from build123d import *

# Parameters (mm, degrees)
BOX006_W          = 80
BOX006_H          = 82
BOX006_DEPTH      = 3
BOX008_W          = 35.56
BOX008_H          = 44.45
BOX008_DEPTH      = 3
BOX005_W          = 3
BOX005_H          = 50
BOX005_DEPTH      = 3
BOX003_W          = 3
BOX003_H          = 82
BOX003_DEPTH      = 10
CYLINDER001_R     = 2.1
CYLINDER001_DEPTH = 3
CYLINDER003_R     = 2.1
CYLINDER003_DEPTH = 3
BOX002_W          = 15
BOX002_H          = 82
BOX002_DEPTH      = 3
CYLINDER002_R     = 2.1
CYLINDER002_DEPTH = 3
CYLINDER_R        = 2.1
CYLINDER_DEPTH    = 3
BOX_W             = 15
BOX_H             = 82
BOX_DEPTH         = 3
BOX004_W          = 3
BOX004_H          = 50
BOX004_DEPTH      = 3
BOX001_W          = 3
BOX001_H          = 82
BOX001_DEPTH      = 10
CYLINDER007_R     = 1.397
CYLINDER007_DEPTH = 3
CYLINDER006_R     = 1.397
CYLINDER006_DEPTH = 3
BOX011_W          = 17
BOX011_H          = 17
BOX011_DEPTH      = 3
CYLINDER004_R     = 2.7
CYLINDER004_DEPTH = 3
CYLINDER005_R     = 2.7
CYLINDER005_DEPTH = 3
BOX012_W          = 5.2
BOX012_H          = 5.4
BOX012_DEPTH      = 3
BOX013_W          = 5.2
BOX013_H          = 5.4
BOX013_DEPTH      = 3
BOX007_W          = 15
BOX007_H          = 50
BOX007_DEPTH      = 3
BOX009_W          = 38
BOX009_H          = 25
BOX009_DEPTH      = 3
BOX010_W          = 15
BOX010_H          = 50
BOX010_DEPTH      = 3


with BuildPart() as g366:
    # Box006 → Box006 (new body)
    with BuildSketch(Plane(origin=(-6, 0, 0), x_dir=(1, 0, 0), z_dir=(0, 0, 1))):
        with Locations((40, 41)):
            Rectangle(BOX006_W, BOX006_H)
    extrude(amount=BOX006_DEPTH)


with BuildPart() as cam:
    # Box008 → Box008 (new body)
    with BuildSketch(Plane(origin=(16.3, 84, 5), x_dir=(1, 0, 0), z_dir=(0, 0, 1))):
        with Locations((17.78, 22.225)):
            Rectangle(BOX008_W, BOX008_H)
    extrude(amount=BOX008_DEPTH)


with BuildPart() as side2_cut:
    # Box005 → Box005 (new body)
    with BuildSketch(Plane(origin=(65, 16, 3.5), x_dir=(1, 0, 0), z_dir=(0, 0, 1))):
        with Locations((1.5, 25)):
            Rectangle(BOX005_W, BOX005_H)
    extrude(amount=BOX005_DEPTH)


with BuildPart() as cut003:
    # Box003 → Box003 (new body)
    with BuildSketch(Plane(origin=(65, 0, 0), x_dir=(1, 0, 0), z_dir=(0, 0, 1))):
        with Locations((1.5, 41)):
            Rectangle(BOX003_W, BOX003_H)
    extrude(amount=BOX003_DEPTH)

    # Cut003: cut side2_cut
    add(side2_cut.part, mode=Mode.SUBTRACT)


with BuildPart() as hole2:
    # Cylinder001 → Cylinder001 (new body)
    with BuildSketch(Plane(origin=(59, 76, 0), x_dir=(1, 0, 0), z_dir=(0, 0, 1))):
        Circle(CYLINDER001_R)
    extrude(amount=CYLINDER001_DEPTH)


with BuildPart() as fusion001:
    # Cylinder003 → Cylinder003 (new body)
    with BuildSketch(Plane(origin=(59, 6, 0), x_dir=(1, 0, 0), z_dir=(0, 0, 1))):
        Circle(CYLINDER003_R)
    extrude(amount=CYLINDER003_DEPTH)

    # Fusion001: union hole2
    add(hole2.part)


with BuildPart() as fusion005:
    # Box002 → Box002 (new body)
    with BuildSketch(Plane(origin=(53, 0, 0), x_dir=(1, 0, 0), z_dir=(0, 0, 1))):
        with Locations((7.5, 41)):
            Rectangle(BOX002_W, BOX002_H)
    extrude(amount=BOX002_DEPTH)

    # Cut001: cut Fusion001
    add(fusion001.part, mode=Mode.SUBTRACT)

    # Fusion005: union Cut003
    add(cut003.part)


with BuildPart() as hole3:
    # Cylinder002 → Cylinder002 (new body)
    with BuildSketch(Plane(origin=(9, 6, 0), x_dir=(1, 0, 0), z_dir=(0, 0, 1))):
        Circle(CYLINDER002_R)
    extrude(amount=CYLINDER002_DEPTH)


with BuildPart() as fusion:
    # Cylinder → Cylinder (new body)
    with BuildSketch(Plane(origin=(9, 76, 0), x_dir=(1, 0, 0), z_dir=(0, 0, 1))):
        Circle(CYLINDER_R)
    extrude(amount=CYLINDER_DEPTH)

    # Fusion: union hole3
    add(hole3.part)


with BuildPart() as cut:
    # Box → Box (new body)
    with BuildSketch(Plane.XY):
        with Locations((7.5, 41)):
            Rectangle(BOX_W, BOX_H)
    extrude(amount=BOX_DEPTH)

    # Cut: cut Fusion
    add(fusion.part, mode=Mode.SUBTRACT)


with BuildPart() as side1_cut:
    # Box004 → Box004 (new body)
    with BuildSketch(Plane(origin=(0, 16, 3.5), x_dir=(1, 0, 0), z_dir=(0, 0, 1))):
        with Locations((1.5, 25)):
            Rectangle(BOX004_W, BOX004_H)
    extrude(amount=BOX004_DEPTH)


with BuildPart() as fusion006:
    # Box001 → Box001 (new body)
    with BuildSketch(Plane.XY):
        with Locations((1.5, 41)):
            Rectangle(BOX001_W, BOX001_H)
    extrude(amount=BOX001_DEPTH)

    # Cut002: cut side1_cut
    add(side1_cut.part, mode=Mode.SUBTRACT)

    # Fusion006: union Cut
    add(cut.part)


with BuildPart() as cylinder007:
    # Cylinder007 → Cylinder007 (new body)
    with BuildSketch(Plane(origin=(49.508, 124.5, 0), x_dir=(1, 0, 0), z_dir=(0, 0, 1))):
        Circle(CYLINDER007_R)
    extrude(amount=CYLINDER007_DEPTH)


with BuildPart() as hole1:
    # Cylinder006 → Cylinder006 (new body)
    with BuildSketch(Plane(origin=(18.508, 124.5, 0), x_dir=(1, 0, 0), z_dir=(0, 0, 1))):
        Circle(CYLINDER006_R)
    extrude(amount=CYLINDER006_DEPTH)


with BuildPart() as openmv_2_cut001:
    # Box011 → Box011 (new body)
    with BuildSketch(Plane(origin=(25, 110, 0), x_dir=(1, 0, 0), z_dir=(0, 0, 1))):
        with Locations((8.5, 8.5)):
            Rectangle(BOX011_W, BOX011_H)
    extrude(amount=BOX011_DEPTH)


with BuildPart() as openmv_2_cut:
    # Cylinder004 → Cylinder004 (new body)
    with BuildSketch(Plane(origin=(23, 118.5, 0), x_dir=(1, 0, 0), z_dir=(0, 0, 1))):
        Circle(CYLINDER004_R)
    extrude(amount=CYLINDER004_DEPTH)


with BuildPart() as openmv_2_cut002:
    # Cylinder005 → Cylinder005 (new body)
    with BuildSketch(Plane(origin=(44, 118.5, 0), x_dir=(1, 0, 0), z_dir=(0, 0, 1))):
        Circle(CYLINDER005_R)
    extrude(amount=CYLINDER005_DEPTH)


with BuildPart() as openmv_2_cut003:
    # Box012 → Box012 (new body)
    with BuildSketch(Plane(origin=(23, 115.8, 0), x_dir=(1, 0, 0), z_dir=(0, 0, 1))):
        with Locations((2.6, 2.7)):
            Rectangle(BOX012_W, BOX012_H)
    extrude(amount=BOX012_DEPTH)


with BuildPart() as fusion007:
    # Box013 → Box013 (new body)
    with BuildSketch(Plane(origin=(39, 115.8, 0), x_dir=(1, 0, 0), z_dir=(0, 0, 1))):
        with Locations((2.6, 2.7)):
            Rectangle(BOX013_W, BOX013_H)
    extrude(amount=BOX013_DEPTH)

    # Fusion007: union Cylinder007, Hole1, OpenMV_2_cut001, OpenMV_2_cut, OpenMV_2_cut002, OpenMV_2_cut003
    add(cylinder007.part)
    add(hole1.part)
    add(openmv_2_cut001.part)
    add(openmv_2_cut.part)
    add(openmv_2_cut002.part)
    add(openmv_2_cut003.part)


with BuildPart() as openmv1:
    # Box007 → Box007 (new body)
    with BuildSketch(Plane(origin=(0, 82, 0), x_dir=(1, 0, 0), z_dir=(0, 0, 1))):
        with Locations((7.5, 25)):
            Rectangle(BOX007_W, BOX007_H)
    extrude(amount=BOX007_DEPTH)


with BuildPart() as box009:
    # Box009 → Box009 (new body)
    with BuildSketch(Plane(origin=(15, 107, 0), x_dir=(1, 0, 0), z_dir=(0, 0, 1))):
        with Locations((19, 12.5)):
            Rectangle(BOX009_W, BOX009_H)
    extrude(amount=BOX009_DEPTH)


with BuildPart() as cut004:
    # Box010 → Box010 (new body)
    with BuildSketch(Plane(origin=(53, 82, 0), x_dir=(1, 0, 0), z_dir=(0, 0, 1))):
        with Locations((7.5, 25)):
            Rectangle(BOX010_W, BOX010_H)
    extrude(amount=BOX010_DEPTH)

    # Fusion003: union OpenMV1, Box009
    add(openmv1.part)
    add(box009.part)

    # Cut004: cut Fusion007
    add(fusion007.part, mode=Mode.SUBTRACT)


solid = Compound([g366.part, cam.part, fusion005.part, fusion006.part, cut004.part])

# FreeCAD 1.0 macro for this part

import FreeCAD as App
import Part
import Sketcher
Q = App.Units.Quantity

doc = App.newDocument("Part")
body = doc.addObject("PartDesign::Body", "Body")

# Sketch on XY plane
sketch1 = body.newObject("Sketcher::SketchObject", "Sketch")
sketch1.AttachmentSupport = (doc.getObject("XY_Plane"), [""])
sketch1.MapMode = "FlatFace"
sketch1.addGeometry([
    Part.LineSegment(App.Vector(-6, 82, 0), App.Vector(-6, 0, 0)),
    Part.LineSegment(App.Vector(-6, 0, 0), App.Vector(74, 0, 0)),
    Part.LineSegment(App.Vector(74, 0, 0), App.Vector(74, 82, 0)),
    Part.LineSegment(App.Vector(74, 82, 0), App.Vector(-6, 82, 0)),
], False)
sketch1.addConstraint([
    Sketcher.Constraint("Coincident", 0, 2, 1, 1),
    Sketcher.Constraint("Coincident", 1, 2, 2, 1),
    Sketcher.Constraint("Coincident", 2, 2, 3, 1),
    Sketcher.Constraint("Coincident", 3, 2, 0, 1),
    Sketcher.Constraint("Vertical", 0),
    Sketcher.Constraint("Horizontal", 1),
    Sketcher.Constraint("Vertical", 2),
    Sketcher.Constraint("Horizontal", 3),
    Sketcher.Constraint("PointOnObject", 0, 2, -1),
    Sketcher.Constraint("DistanceX", 1, 1, 1, 2, Q("80 mm")),
    Sketcher.Constraint("DistanceY", 0, 2, 0, 1, Q("82 mm")),
    Sketcher.Constraint("DistanceX", 0, 2, -1, 1, Q("6 mm")),
])
pad1 = body.newObject("PartDesign::Pad", "Pad")
pad1.Profile = sketch1
pad1.Length = 3
body2 = doc.addObject("PartDesign::Body", "Body001")

# Sketch on XY plane
sketch2 = body2.newObject("Sketcher::SketchObject", "Sketch001")
sketch2.AttachmentSupport = (doc.getObject("XY_Plane001"), [""])
sketch2.MapMode = "FlatFace"
sketch2.AttachmentOffset = App.Placement(App.Vector(0, 0, 5), App.Rotation())
sketch2.addGeometry([
    Part.LineSegment(App.Vector(16, 128, 0), App.Vector(16, 84, 0)),
    Part.LineSegment(App.Vector(16, 84, 0), App.Vector(52, 84, 0)),
    Part.LineSegment(App.Vector(52, 84, 0), App.Vector(52, 128, 0)),
    Part.LineSegment(App.Vector(52, 128, 0), App.Vector(16, 128, 0)),
], False)
sketch2.addConstraint([
    Sketcher.Constraint("Coincident", 0, 2, 1, 1),
    Sketcher.Constraint("Coincident", 1, 2, 2, 1),
    Sketcher.Constraint("Coincident", 2, 2, 3, 1),
    Sketcher.Constraint("Coincident", 3, 2, 0, 1),
    Sketcher.Constraint("Vertical", 0),
    Sketcher.Constraint("Horizontal", 1),
    Sketcher.Constraint("Vertical", 2),
    Sketcher.Constraint("Horizontal", 3),
    Sketcher.Constraint("DistanceY", -1, 1, 0, 2, Q("84 mm")),
    Sketcher.Constraint("DistanceX", 1, 1, 1, 2, Q("35.56 mm")),
    Sketcher.Constraint("DistanceY", 0, 2, 0, 1, Q("44.45 mm")),
    Sketcher.Constraint("DistanceX", -1, 1, 0, 2, Q("16.3 mm")),
])
pad2 = body2.newObject("PartDesign::Pad", "Pad001")
pad2.Profile = sketch2
pad2.Length = 3
body3 = doc.addObject("PartDesign::Body", "Body002")

# Sketch on XY plane
sketch3 = body3.newObject("Sketcher::SketchObject", "Sketch002")
sketch3.AttachmentSupport = (doc.getObject("XY_Plane002"), [""])
sketch3.MapMode = "FlatFace"
sketch3.AttachmentOffset = App.Placement(App.Vector(0, 0, 3.5), App.Rotation())
sketch3.addGeometry([
    Part.LineSegment(App.Vector(65, 66, 0), App.Vector(65, 16, 0)),
    Part.LineSegment(App.Vector(65, 16, 0), App.Vector(68, 16, 0)),
    Part.LineSegment(App.Vector(68, 16, 0), App.Vector(68, 66, 0)),
    Part.LineSegment(App.Vector(68, 66, 0), App.Vector(65, 66, 0)),
], False)
sketch3.addConstraint([
    Sketcher.Constraint("Coincident", 0, 2, 1, 1),
    Sketcher.Constraint("Coincident", 1, 2, 2, 1),
    Sketcher.Constraint("Coincident", 2, 2, 3, 1),
    Sketcher.Constraint("Coincident", 3, 2, 0, 1),
    Sketcher.Constraint("Vertical", 0),
    Sketcher.Constraint("Horizontal", 1),
    Sketcher.Constraint("Vertical", 2),
    Sketcher.Constraint("Horizontal", 3),
    Sketcher.Constraint("DistanceX", 1, 1, 1, 2, Q("3 mm")),
    Sketcher.Constraint("DistanceY", 0, 2, 0, 1, Q("50 mm")),
    Sketcher.Constraint("DistanceX", -1, 1, 0, 2, Q("65 mm")),
    Sketcher.Constraint("DistanceY", -1, 1, 0, 2, Q("16 mm")),
])
pad3 = body3.newObject("PartDesign::Pad", "Pad002")
pad3.Profile = sketch3
pad3.Length = 3
body4 = doc.addObject("PartDesign::Body", "Body003")

# Sketch on XY plane
sketch4 = body4.newObject("Sketcher::SketchObject", "Sketch003")
sketch4.AttachmentSupport = (doc.getObject("XY_Plane003"), [""])
sketch4.MapMode = "FlatFace"
sketch4.addGeometry([
    Part.LineSegment(App.Vector(65, 82, 0), App.Vector(65, 0, 0)),
    Part.LineSegment(App.Vector(65, 0, 0), App.Vector(68, 0, 0)),
    Part.LineSegment(App.Vector(68, 0, 0), App.Vector(68, 82, 0)),
    Part.LineSegment(App.Vector(68, 82, 0), App.Vector(65, 82, 0)),
], False)
sketch4.addConstraint([
    Sketcher.Constraint("Coincident", 0, 2, 1, 1),
    Sketcher.Constraint("Coincident", 1, 2, 2, 1),
    Sketcher.Constraint("Coincident", 2, 2, 3, 1),
    Sketcher.Constraint("Coincident", 3, 2, 0, 1),
    Sketcher.Constraint("Vertical", 0),
    Sketcher.Constraint("Horizontal", 1),
    Sketcher.Constraint("Vertical", 2),
    Sketcher.Constraint("Horizontal", 3),
    Sketcher.Constraint("PointOnObject", 0, 2, -1),
    Sketcher.Constraint("DistanceX", 1, 1, 1, 2, Q("3 mm")),
    Sketcher.Constraint("DistanceY", 0, 2, 0, 1, Q("82 mm")),
    Sketcher.Constraint("DistanceX", -1, 1, 0, 2, Q("65 mm")),
])
pad4 = body4.newObject("PartDesign::Pad", "Pad003")
pad4.Profile = sketch4
pad4.Length = 10
doc.recompute()

boolean = body4.newObject("PartDesign::Boolean", "Boolean")
boolean.Type = "Cut"
boolean.addObjects([body3])
body5 = doc.addObject("PartDesign::Body", "Body004")

# Sketch on XY plane
sketch5 = body5.newObject("Sketcher::SketchObject", "Sketch004")
sketch5.AttachmentSupport = (doc.getObject("XY_Plane004"), [""])
sketch5.MapMode = "FlatFace"
sketch5.addGeometry(Part.Circle(App.Vector(59, 76, 0), App.Vector(0, 0, 1), 2.1), False)
sketch5.addConstraint([
    Sketcher.Constraint("Diameter", 0, Q("4.2 mm")),
    Sketcher.Constraint("DistanceX", -1, 1, 0, 3, Q("59 mm")),
    Sketcher.Constraint("DistanceY", -1, 1, 0, 3, Q("76 mm")),
])
pad5 = body5.newObject("PartDesign::Pad", "Pad004")
pad5.Profile = sketch5
pad5.Length = 3
body6 = doc.addObject("PartDesign::Body", "Body005")
body6.AllowCompound = True

# Sketch on XY plane
sketch6 = body6.newObject("Sketcher::SketchObject", "Sketch005")
sketch6.AttachmentSupport = (doc.getObject("XY_Plane005"), [""])
sketch6.MapMode = "FlatFace"
sketch6.addGeometry(Part.Circle(App.Vector(59, 6, 0), App.Vector(0, 0, 1), 2.1), False)
sketch6.addConstraint([
    Sketcher.Constraint("Diameter", 0, Q("4.2 mm")),
    Sketcher.Constraint("DistanceX", -1, 1, 0, 3, Q("59 mm")),
    Sketcher.Constraint("DistanceY", -1, 1, 0, 3, Q("6 mm")),
])
pad6 = body6.newObject("PartDesign::Pad", "Pad005")
pad6.Profile = sketch6
pad6.Length = 3
doc.recompute()

boolean2 = body6.newObject("PartDesign::Boolean", "Boolean001")
boolean2.Type = "Fuse"
boolean2.addObjects([body5])
body7 = doc.addObject("PartDesign::Body", "Body006")

# Sketch on XY plane
sketch7 = body7.newObject("Sketcher::SketchObject", "Sketch006")
sketch7.AttachmentSupport = (doc.getObject("XY_Plane006"), [""])
sketch7.MapMode = "FlatFace"
sketch7.addGeometry([
    Part.LineSegment(App.Vector(53, 82, 0), App.Vector(53, 0, 0)),
    Part.LineSegment(App.Vector(53, 0, 0), App.Vector(68, 0, 0)),
    Part.LineSegment(App.Vector(68, 0, 0), App.Vector(68, 82, 0)),
    Part.LineSegment(App.Vector(68, 82, 0), App.Vector(53, 82, 0)),
], False)
sketch7.addConstraint([
    Sketcher.Constraint("Coincident", 0, 2, 1, 1),
    Sketcher.Constraint("Coincident", 1, 2, 2, 1),
    Sketcher.Constraint("Coincident", 2, 2, 3, 1),
    Sketcher.Constraint("Coincident", 3, 2, 0, 1),
    Sketcher.Constraint("Vertical", 0),
    Sketcher.Constraint("Horizontal", 1),
    Sketcher.Constraint("Vertical", 2),
    Sketcher.Constraint("Horizontal", 3),
    Sketcher.Constraint("PointOnObject", 0, 2, -1),
    Sketcher.Constraint("DistanceX", 1, 1, 1, 2, Q("15 mm")),
    Sketcher.Constraint("DistanceY", 0, 2, 0, 1, Q("82 mm")),
    Sketcher.Constraint("DistanceX", -1, 1, 0, 2, Q("53 mm")),
])
pad7 = body7.newObject("PartDesign::Pad", "Pad006")
pad7.Profile = sketch7
pad7.Length = 3
doc.recompute()

boolean3 = body7.newObject("PartDesign::Boolean", "Boolean002")
boolean3.Type = "Cut"
boolean3.addObjects([body6])
doc.recompute()

boolean4 = body7.newObject("PartDesign::Boolean", "Boolean003")
boolean4.Type = "Fuse"
boolean4.addObjects([body4])
body8 = doc.addObject("PartDesign::Body", "Body007")

# Sketch on XY plane
sketch8 = body8.newObject("Sketcher::SketchObject", "Sketch007")
sketch8.AttachmentSupport = (doc.getObject("XY_Plane007"), [""])
sketch8.MapMode = "FlatFace"
sketch8.addGeometry(Part.Circle(App.Vector(9, 6, 0), App.Vector(0, 0, 1), 2.1), False)
sketch8.addConstraint([
    Sketcher.Constraint("Diameter", 0, Q("4.2 mm")),
    Sketcher.Constraint("DistanceX", -1, 1, 0, 3, Q("9 mm")),
    Sketcher.Constraint("DistanceY", -1, 1, 0, 3, Q("6 mm")),
])
pad8 = body8.newObject("PartDesign::Pad", "Pad007")
pad8.Profile = sketch8
pad8.Length = 3
body9 = doc.addObject("PartDesign::Body", "Body008")
body9.AllowCompound = True

# Sketch on XY plane
sketch9 = body9.newObject("Sketcher::SketchObject", "Sketch008")
sketch9.AttachmentSupport = (doc.getObject("XY_Plane008"), [""])
sketch9.MapMode = "FlatFace"
sketch9.addGeometry(Part.Circle(App.Vector(9, 76, 0), App.Vector(0, 0, 1), 2.1), False)
sketch9.addConstraint([
    Sketcher.Constraint("Diameter", 0, Q("4.2 mm")),
    Sketcher.Constraint("DistanceX", -1, 1, 0, 3, Q("9 mm")),
    Sketcher.Constraint("DistanceY", -1, 1, 0, 3, Q("76 mm")),
])
pad9 = body9.newObject("PartDesign::Pad", "Pad008")
pad9.Profile = sketch9
pad9.Length = 3
doc.recompute()

boolean5 = body9.newObject("PartDesign::Boolean", "Boolean004")
boolean5.Type = "Fuse"
boolean5.addObjects([body8])
body10 = doc.addObject("PartDesign::Body", "Body009")

# Sketch on XY plane
sketch10 = body10.newObject("Sketcher::SketchObject", "Sketch009")
sketch10.AttachmentSupport = (doc.getObject("XY_Plane009"), [""])
sketch10.MapMode = "FlatFace"
sketch10.addGeometry([
    Part.LineSegment(App.Vector(0, 82, 0), App.Vector(0, 0, 0)),
    Part.LineSegment(App.Vector(0, 0, 0), App.Vector(15, 0, 0)),
    Part.LineSegment(App.Vector(15, 0, 0), App.Vector(15, 82, 0)),
    Part.LineSegment(App.Vector(15, 82, 0), App.Vector(0, 82, 0)),
], False)
sketch10.addConstraint([
    Sketcher.Constraint("Coincident", 0, 2, 1, 1),
    Sketcher.Constraint("Coincident", 1, 2, 2, 1),
    Sketcher.Constraint("Coincident", 2, 2, 3, 1),
    Sketcher.Constraint("Coincident", 3, 2, 0, 1),
    Sketcher.Constraint("Vertical", 0),
    Sketcher.Constraint("Horizontal", 1),
    Sketcher.Constraint("Vertical", 2),
    Sketcher.Constraint("Horizontal", 3),
    Sketcher.Constraint("Coincident", 0, 2, -1, 1),
    Sketcher.Constraint("DistanceX", 1, 1, 1, 2, Q("15 mm")),
    Sketcher.Constraint("DistanceY", 0, 2, 0, 1, Q("82 mm")),
])
pad10 = body10.newObject("PartDesign::Pad", "Pad009")
pad10.Profile = sketch10
pad10.Length = 3
doc.recompute()

boolean6 = body10.newObject("PartDesign::Boolean", "Boolean005")
boolean6.Type = "Cut"
boolean6.addObjects([body9])
body11 = doc.addObject("PartDesign::Body", "Body010")

# Sketch on XY plane
sketch11 = body11.newObject("Sketcher::SketchObject", "Sketch010")
sketch11.AttachmentSupport = (doc.getObject("XY_Plane010"), [""])
sketch11.MapMode = "FlatFace"
sketch11.AttachmentOffset = App.Placement(App.Vector(0, 0, 3.5), App.Rotation())
sketch11.addGeometry([
    Part.LineSegment(App.Vector(0, 66, 0), App.Vector(0, 16, 0)),
    Part.LineSegment(App.Vector(0, 16, 0), App.Vector(3, 16, 0)),
    Part.LineSegment(App.Vector(3, 16, 0), App.Vector(3, 66, 0)),
    Part.LineSegment(App.Vector(3, 66, 0), App.Vector(0, 66, 0)),
], False)
sketch11.addConstraint([
    Sketcher.Constraint("Coincident", 0, 2, 1, 1),
    Sketcher.Constraint("Coincident", 1, 2, 2, 1),
    Sketcher.Constraint("Coincident", 2, 2, 3, 1),
    Sketcher.Constraint("Coincident", 3, 2, 0, 1),
    Sketcher.Constraint("Vertical", 0),
    Sketcher.Constraint("Horizontal", 1),
    Sketcher.Constraint("Vertical", 2),
    Sketcher.Constraint("Horizontal", 3),
    Sketcher.Constraint("PointOnObject", 0, 2, -2),
    Sketcher.Constraint("DistanceX", 1, 1, 1, 2, Q("3 mm")),
    Sketcher.Constraint("DistanceY", 0, 2, 0, 1, Q("50 mm")),
    Sketcher.Constraint("DistanceY", -1, 1, 0, 2, Q("16 mm")),
])
pad11 = body11.newObject("PartDesign::Pad", "Pad010")
pad11.Profile = sketch11
pad11.Length = 3
body12 = doc.addObject("PartDesign::Body", "Body011")

# Sketch on XY plane
sketch12 = body12.newObject("Sketcher::SketchObject", "Sketch011")
sketch12.AttachmentSupport = (doc.getObject("XY_Plane011"), [""])
sketch12.MapMode = "FlatFace"
sketch12.addGeometry([
    Part.LineSegment(App.Vector(0, 82, 0), App.Vector(0, 0, 0)),
    Part.LineSegment(App.Vector(0, 0, 0), App.Vector(3, 0, 0)),
    Part.LineSegment(App.Vector(3, 0, 0), App.Vector(3, 82, 0)),
    Part.LineSegment(App.Vector(3, 82, 0), App.Vector(0, 82, 0)),
], False)
sketch12.addConstraint([
    Sketcher.Constraint("Coincident", 0, 2, 1, 1),
    Sketcher.Constraint("Coincident", 1, 2, 2, 1),
    Sketcher.Constraint("Coincident", 2, 2, 3, 1),
    Sketcher.Constraint("Coincident", 3, 2, 0, 1),
    Sketcher.Constraint("Vertical", 0),
    Sketcher.Constraint("Horizontal", 1),
    Sketcher.Constraint("Vertical", 2),
    Sketcher.Constraint("Horizontal", 3),
    Sketcher.Constraint("Coincident", 0, 2, -1, 1),
    Sketcher.Constraint("DistanceX", 1, 1, 1, 2, Q("3 mm")),
    Sketcher.Constraint("DistanceY", 0, 2, 0, 1, Q("82 mm")),
])
pad12 = body12.newObject("PartDesign::Pad", "Pad011")
pad12.Profile = sketch12
pad12.Length = 10
doc.recompute()

boolean7 = body12.newObject("PartDesign::Boolean", "Boolean006")
boolean7.Type = "Cut"
boolean7.addObjects([body11])
doc.recompute()

boolean8 = body12.newObject("PartDesign::Boolean", "Boolean007")
boolean8.Type = "Fuse"
boolean8.addObjects([body10])
body13 = doc.addObject("PartDesign::Body", "Body012")

# Sketch on XY plane
sketch13 = body13.newObject("Sketcher::SketchObject", "Sketch012")
sketch13.AttachmentSupport = (doc.getObject("XY_Plane012"), [""])
sketch13.MapMode = "FlatFace"
sketch13.addGeometry(Part.Circle(App.Vector(49.5, 124.5, 0), App.Vector(0, 0, 1), 1.4), False)
sketch13.addConstraint([
    Sketcher.Constraint("Diameter", 0, Q("2.794 mm")),
    Sketcher.Constraint("DistanceY", -1, 1, 0, 3, Q("124.5 mm")),
    Sketcher.Constraint("DistanceX", -1, 1, 0, 3, Q("49.508 mm")),
])
pad13 = body13.newObject("PartDesign::Pad", "Pad012")
pad13.Profile = sketch13
pad13.Length = 3
body14 = doc.addObject("PartDesign::Body", "Body013")

# Sketch on XY plane
sketch14 = body14.newObject("Sketcher::SketchObject", "Sketch013")
sketch14.AttachmentSupport = (doc.getObject("XY_Plane013"), [""])
sketch14.MapMode = "FlatFace"
sketch14.addGeometry(Part.Circle(App.Vector(18.5, 124.5, 0), App.Vector(0, 0, 1), 1.4), False)
sketch14.addConstraint([
    Sketcher.Constraint("Diameter", 0, Q("2.794 mm")),
    Sketcher.Constraint("DistanceY", -1, 1, 0, 3, Q("124.5 mm")),
    Sketcher.Constraint("DistanceX", -1, 1, 0, 3, Q("18.508 mm")),
])
pad14 = body14.newObject("PartDesign::Pad", "Pad013")
pad14.Profile = sketch14
pad14.Length = 3
body15 = doc.addObject("PartDesign::Body", "Body014")

# Sketch on XY plane
sketch15 = body15.newObject("Sketcher::SketchObject", "Sketch014")
sketch15.AttachmentSupport = (doc.getObject("XY_Plane014"), [""])
sketch15.MapMode = "FlatFace"
sketch15.addGeometry([
    Part.LineSegment(App.Vector(25, 127, 0), App.Vector(25, 110, 0)),
    Part.LineSegment(App.Vector(25, 110, 0), App.Vector(42, 110, 0)),
    Part.LineSegment(App.Vector(42, 110, 0), App.Vector(42, 127, 0)),
    Part.LineSegment(App.Vector(42, 127, 0), App.Vector(25, 127, 0)),
], False)
sketch15.addConstraint([
    Sketcher.Constraint("Coincident", 0, 2, 1, 1),
    Sketcher.Constraint("Coincident", 1, 2, 2, 1),
    Sketcher.Constraint("Coincident", 2, 2, 3, 1),
    Sketcher.Constraint("Coincident", 3, 2, 0, 1),
    Sketcher.Constraint("Vertical", 0),
    Sketcher.Constraint("Horizontal", 1),
    Sketcher.Constraint("Vertical", 2),
    Sketcher.Constraint("Horizontal", 3),
    Sketcher.Constraint("Equal", 3, 0),
    Sketcher.Constraint("DistanceX", 1, 1, 1, 2, Q("17 mm")),
    Sketcher.Constraint("DistanceX", -1, 1, 0, 2, Q("25 mm")),
    Sketcher.Constraint("DistanceY", -1, 1, 0, 2, Q("110 mm")),
])
pad15 = body15.newObject("PartDesign::Pad", "Pad014")
pad15.Profile = sketch15
pad15.Length = 3
body16 = doc.addObject("PartDesign::Body", "Body015")

# Sketch on XY plane
sketch16 = body16.newObject("Sketcher::SketchObject", "Sketch015")
sketch16.AttachmentSupport = (doc.getObject("XY_Plane015"), [""])
sketch16.MapMode = "FlatFace"
sketch16.addGeometry(Part.Circle(App.Vector(23, 118.5, 0), App.Vector(0, 0, 1), 2.7), False)
sketch16.addConstraint([
    Sketcher.Constraint("Diameter", 0, Q("5.4 mm")),
    Sketcher.Constraint("DistanceX", -1, 1, 0, 3, Q("23 mm")),
    Sketcher.Constraint("DistanceY", -1, 1, 0, 3, Q("118.5 mm")),
])
pad16 = body16.newObject("PartDesign::Pad", "Pad015")
pad16.Profile = sketch16
pad16.Length = 3
body17 = doc.addObject("PartDesign::Body", "Body016")

# Sketch on XY plane
sketch17 = body17.newObject("Sketcher::SketchObject", "Sketch016")
sketch17.AttachmentSupport = (doc.getObject("XY_Plane016"), [""])
sketch17.MapMode = "FlatFace"
sketch17.addGeometry(Part.Circle(App.Vector(44, 118.5, 0), App.Vector(0, 0, 1), 2.7), False)
sketch17.addConstraint([
    Sketcher.Constraint("Diameter", 0, Q("5.4 mm")),
    Sketcher.Constraint("DistanceX", -1, 1, 0, 3, Q("44 mm")),
    Sketcher.Constraint("DistanceY", -1, 1, 0, 3, Q("118.5 mm")),
])
pad17 = body17.newObject("PartDesign::Pad", "Pad016")
pad17.Profile = sketch17
pad17.Length = 3
body18 = doc.addObject("PartDesign::Body", "Body017")

# Sketch on XY plane
sketch18 = body18.newObject("Sketcher::SketchObject", "Sketch017")
sketch18.AttachmentSupport = (doc.getObject("XY_Plane017"), [""])
sketch18.MapMode = "FlatFace"
sketch18.addGeometry([
    Part.LineSegment(App.Vector(23, 121, 0), App.Vector(23, 116, 0)),
    Part.LineSegment(App.Vector(23, 116, 0), App.Vector(28, 116, 0)),
    Part.LineSegment(App.Vector(28, 116, 0), App.Vector(28, 121, 0)),
    Part.LineSegment(App.Vector(28, 121, 0), App.Vector(23, 121, 0)),
], False)
sketch18.addConstraint([
    Sketcher.Constraint("Coincident", 0, 2, 1, 1),
    Sketcher.Constraint("Coincident", 1, 2, 2, 1),
    Sketcher.Constraint("Coincident", 2, 2, 3, 1),
    Sketcher.Constraint("Coincident", 3, 2, 0, 1),
    Sketcher.Constraint("Vertical", 0),
    Sketcher.Constraint("Horizontal", 1),
    Sketcher.Constraint("Vertical", 2),
    Sketcher.Constraint("Horizontal", 3),
    Sketcher.Constraint("DistanceX", 1, 1, 1, 2, Q("5.2 mm")),
    Sketcher.Constraint("DistanceY", 0, 2, 0, 1, Q("5.4 mm")),
    Sketcher.Constraint("DistanceX", -1, 1, 0, 2, Q("23 mm")),
    Sketcher.Constraint("DistanceY", -1, 1, 0, 2, Q("115.8 mm")),
])
pad18 = body18.newObject("PartDesign::Pad", "Pad017")
pad18.Profile = sketch18
pad18.Length = 3
body19 = doc.addObject("PartDesign::Body", "Body018")
body19.AllowCompound = True

# Sketch on XY plane
sketch19 = body19.newObject("Sketcher::SketchObject", "Sketch018")
sketch19.AttachmentSupport = (doc.getObject("XY_Plane018"), [""])
sketch19.MapMode = "FlatFace"
sketch19.addGeometry([
    Part.LineSegment(App.Vector(39, 121, 0), App.Vector(39, 116, 0)),
    Part.LineSegment(App.Vector(39, 116, 0), App.Vector(44, 116, 0)),
    Part.LineSegment(App.Vector(44, 116, 0), App.Vector(44, 121, 0)),
    Part.LineSegment(App.Vector(44, 121, 0), App.Vector(39, 121, 0)),
], False)
sketch19.addConstraint([
    Sketcher.Constraint("Coincident", 0, 2, 1, 1),
    Sketcher.Constraint("Coincident", 1, 2, 2, 1),
    Sketcher.Constraint("Coincident", 2, 2, 3, 1),
    Sketcher.Constraint("Coincident", 3, 2, 0, 1),
    Sketcher.Constraint("Vertical", 0),
    Sketcher.Constraint("Horizontal", 1),
    Sketcher.Constraint("Vertical", 2),
    Sketcher.Constraint("Horizontal", 3),
    Sketcher.Constraint("DistanceX", 1, 1, 1, 2, Q("5.2 mm")),
    Sketcher.Constraint("DistanceY", 0, 2, 0, 1, Q("5.4 mm")),
    Sketcher.Constraint("DistanceX", -1, 1, 0, 2, Q("39 mm")),
    Sketcher.Constraint("DistanceY", -1, 1, 0, 2, Q("115.8 mm")),
])
pad19 = body19.newObject("PartDesign::Pad", "Pad018")
pad19.Profile = sketch19
pad19.Length = 3
doc.recompute()

boolean9 = body19.newObject("PartDesign::Boolean", "Boolean008")
boolean9.Type = "Fuse"
boolean9.addObjects([body13])
doc.recompute()

boolean10 = body19.newObject("PartDesign::Boolean", "Boolean009")
boolean10.Type = "Fuse"
boolean10.addObjects([body14])
doc.recompute()

boolean11 = body19.newObject("PartDesign::Boolean", "Boolean010")
boolean11.Type = "Fuse"
boolean11.addObjects([body15])
doc.recompute()

boolean12 = body19.newObject("PartDesign::Boolean", "Boolean011")
boolean12.Type = "Fuse"
boolean12.addObjects([body16])
doc.recompute()

boolean13 = body19.newObject("PartDesign::Boolean", "Boolean012")
boolean13.Type = "Fuse"
boolean13.addObjects([body17])
doc.recompute()

boolean14 = body19.newObject("PartDesign::Boolean", "Boolean013")
boolean14.Type = "Fuse"
boolean14.addObjects([body18])
body20 = doc.addObject("PartDesign::Body", "Body019")

# Sketch on XY plane
sketch20 = body20.newObject("Sketcher::SketchObject", "Sketch019")
sketch20.AttachmentSupport = (doc.getObject("XY_Plane019"), [""])
sketch20.MapMode = "FlatFace"
sketch20.addGeometry([
    Part.LineSegment(App.Vector(0, 132, 0), App.Vector(0, 82, 0)),
    Part.LineSegment(App.Vector(0, 82, 0), App.Vector(15, 82, 0)),
    Part.LineSegment(App.Vector(15, 82, 0), App.Vector(15, 132, 0)),
    Part.LineSegment(App.Vector(15, 132, 0), App.Vector(0, 132, 0)),
], False)
sketch20.addConstraint([
    Sketcher.Constraint("Coincident", 0, 2, 1, 1),
    Sketcher.Constraint("Coincident", 1, 2, 2, 1),
    Sketcher.Constraint("Coincident", 2, 2, 3, 1),
    Sketcher.Constraint("Coincident", 3, 2, 0, 1),
    Sketcher.Constraint("Vertical", 0),
    Sketcher.Constraint("Horizontal", 1),
    Sketcher.Constraint("Vertical", 2),
    Sketcher.Constraint("Horizontal", 3),
    Sketcher.Constraint("PointOnObject", 0, 2, -2),
    Sketcher.Constraint("DistanceX", 1, 1, 1, 2, Q("15 mm")),
    Sketcher.Constraint("DistanceY", 0, 2, 0, 1, Q("50 mm")),
    Sketcher.Constraint("DistanceY", -1, 1, 0, 2, Q("82 mm")),
])
pad20 = body20.newObject("PartDesign::Pad", "Pad019")
pad20.Profile = sketch20
pad20.Length = 3
body21 = doc.addObject("PartDesign::Body", "Body020")

# Sketch on XY plane
sketch21 = body21.newObject("Sketcher::SketchObject", "Sketch020")
sketch21.AttachmentSupport = (doc.getObject("XY_Plane020"), [""])
sketch21.MapMode = "FlatFace"
sketch21.addGeometry([
    Part.LineSegment(App.Vector(15, 132, 0), App.Vector(15, 107, 0)),
    Part.LineSegment(App.Vector(15, 107, 0), App.Vector(53, 107, 0)),
    Part.LineSegment(App.Vector(53, 107, 0), App.Vector(53, 132, 0)),
    Part.LineSegment(App.Vector(53, 132, 0), App.Vector(15, 132, 0)),
], False)
sketch21.addConstraint([
    Sketcher.Constraint("Coincident", 0, 2, 1, 1),
    Sketcher.Constraint("Coincident", 1, 2, 2, 1),
    Sketcher.Constraint("Coincident", 2, 2, 3, 1),
    Sketcher.Constraint("Coincident", 3, 2, 0, 1),
    Sketcher.Constraint("Vertical", 0),
    Sketcher.Constraint("Horizontal", 1),
    Sketcher.Constraint("Vertical", 2),
    Sketcher.Constraint("Horizontal", 3),
    Sketcher.Constraint("DistanceX", 1, 1, 1, 2, Q("38 mm")),
    Sketcher.Constraint("DistanceY", 0, 2, 0, 1, Q("25 mm")),
    Sketcher.Constraint("DistanceX", -1, 1, 0, 2, Q("15 mm")),
    Sketcher.Constraint("DistanceY", -1, 1, 0, 2, Q("107 mm")),
])
pad21 = body21.newObject("PartDesign::Pad", "Pad020")
pad21.Profile = sketch21
pad21.Length = 3
body22 = doc.addObject("PartDesign::Body", "Body021")
body22.AllowCompound = True

# Sketch on XY plane
sketch22 = body22.newObject("Sketcher::SketchObject", "Sketch021")
sketch22.AttachmentSupport = (doc.getObject("XY_Plane021"), [""])
sketch22.MapMode = "FlatFace"
sketch22.addGeometry([
    Part.LineSegment(App.Vector(53, 132, 0), App.Vector(53, 82, 0)),
    Part.LineSegment(App.Vector(53, 82, 0), App.Vector(68, 82, 0)),
    Part.LineSegment(App.Vector(68, 82, 0), App.Vector(68, 132, 0)),
    Part.LineSegment(App.Vector(68, 132, 0), App.Vector(53, 132, 0)),
], False)
sketch22.addConstraint([
    Sketcher.Constraint("Coincident", 0, 2, 1, 1),
    Sketcher.Constraint("Coincident", 1, 2, 2, 1),
    Sketcher.Constraint("Coincident", 2, 2, 3, 1),
    Sketcher.Constraint("Coincident", 3, 2, 0, 1),
    Sketcher.Constraint("Vertical", 0),
    Sketcher.Constraint("Horizontal", 1),
    Sketcher.Constraint("Vertical", 2),
    Sketcher.Constraint("Horizontal", 3),
    Sketcher.Constraint("DistanceX", 1, 1, 1, 2, Q("15 mm")),
    Sketcher.Constraint("DistanceY", 0, 2, 0, 1, Q("50 mm")),
    Sketcher.Constraint("DistanceX", -1, 1, 0, 2, Q("53 mm")),
    Sketcher.Constraint("DistanceY", -1, 1, 0, 2, Q("82 mm")),
])
pad22 = body22.newObject("PartDesign::Pad", "Pad021")
pad22.Profile = sketch22
pad22.Length = 3
doc.recompute()

boolean15 = body22.newObject("PartDesign::Boolean", "Boolean014")
boolean15.Type = "Fuse"
boolean15.addObjects([body20])
doc.recompute()

boolean16 = body22.newObject("PartDesign::Boolean", "Boolean015")
boolean16.Type = "Fuse"
boolean16.addObjects([body21])
doc.recompute()

boolean17 = body22.newObject("PartDesign::Boolean", "Boolean016")
boolean17.Type = "Cut"
boolean17.addObjects([body19])

doc.recompute()
